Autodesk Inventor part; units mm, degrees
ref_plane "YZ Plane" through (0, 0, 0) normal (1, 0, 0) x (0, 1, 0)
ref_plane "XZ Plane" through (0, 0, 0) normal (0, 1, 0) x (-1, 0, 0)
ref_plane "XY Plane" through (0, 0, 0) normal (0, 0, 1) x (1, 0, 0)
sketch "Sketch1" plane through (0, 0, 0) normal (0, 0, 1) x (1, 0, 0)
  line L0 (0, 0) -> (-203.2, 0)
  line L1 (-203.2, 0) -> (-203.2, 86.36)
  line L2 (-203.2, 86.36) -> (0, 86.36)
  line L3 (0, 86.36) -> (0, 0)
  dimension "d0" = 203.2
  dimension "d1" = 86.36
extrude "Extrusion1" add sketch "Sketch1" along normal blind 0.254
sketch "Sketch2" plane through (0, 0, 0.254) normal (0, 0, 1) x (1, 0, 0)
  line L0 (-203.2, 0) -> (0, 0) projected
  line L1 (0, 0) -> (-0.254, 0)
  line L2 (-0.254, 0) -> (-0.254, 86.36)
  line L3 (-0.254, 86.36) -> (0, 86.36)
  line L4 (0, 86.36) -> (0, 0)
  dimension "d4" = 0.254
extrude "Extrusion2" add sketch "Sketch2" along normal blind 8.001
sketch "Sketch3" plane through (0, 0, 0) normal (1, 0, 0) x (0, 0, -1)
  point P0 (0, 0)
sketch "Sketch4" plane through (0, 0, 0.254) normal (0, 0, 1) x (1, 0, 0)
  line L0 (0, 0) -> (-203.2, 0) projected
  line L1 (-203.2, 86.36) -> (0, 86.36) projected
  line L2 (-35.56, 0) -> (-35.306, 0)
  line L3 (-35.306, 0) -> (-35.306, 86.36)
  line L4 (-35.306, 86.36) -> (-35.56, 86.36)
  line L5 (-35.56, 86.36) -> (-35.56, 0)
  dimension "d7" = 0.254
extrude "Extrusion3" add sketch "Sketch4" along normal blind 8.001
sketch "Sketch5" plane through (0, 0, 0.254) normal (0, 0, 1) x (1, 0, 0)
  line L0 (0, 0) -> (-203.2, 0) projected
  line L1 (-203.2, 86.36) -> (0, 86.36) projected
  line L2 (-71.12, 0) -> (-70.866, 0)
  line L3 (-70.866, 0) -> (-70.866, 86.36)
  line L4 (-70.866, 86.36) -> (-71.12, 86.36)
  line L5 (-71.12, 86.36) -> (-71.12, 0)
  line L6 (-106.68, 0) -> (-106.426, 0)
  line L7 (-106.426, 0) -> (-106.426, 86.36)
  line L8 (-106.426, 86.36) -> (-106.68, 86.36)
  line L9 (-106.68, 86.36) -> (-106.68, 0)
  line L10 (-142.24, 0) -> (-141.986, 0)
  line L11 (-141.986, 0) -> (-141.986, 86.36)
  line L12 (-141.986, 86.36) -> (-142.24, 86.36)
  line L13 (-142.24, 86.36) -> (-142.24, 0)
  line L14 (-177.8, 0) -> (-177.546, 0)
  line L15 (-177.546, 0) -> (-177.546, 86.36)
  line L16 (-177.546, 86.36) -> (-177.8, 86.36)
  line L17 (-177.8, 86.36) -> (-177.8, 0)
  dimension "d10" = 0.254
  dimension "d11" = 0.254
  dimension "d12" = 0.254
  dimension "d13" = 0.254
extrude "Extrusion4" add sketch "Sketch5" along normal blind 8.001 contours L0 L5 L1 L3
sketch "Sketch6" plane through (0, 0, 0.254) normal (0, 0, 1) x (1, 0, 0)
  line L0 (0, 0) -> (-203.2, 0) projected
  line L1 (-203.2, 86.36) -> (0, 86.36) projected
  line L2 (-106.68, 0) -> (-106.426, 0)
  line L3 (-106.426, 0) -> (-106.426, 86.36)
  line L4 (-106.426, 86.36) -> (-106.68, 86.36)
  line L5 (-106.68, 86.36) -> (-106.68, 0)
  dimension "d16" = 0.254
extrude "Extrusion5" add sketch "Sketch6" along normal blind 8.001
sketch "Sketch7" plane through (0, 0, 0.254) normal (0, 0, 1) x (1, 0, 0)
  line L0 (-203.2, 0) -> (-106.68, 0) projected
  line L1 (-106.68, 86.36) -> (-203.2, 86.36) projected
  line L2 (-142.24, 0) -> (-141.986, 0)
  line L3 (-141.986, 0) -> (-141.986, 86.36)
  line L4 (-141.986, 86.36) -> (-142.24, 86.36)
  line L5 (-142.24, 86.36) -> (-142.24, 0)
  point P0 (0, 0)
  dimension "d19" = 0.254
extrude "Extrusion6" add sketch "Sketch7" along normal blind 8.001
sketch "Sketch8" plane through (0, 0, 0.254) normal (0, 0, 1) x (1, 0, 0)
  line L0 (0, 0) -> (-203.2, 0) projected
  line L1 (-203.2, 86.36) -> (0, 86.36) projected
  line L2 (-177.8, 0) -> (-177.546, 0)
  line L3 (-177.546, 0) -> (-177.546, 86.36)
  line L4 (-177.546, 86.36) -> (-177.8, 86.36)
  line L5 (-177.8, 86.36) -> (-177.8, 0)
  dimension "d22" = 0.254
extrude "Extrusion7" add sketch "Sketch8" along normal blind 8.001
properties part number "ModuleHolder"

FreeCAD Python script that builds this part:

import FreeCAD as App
import Part
import Sketcher
from FreeCAD import Vector
Q = App.Units.Quantity

doc = App.newDocument("Part")
params = doc.addObject("Spreadsheet::Sheet", "Params")
for row, (alias, value) in enumerate([
    ("sketch1_width", "8 in"),
    ("sketch1_height", "3.4 in"),
    ("pad1_length", "0.01 in"),
    ("sketch2_width", "0.01 in"),
    ("sketch2_height", "3.4 in"),
    ("pad2_length", "0.315 in"),
    ("sketch3_width", "0.01 in"),
    ("sketch3_height", "3.4 in"),
    ("pad3_length", "0.315 in"),
    ("sketch4_width", "0.01 in"),
    ("sketch4_height", "3.4 in"),
    ("pad4_length", "0.315 in"),
    ("sketch5_width", "0.01 in"),
    ("sketch5_height", "3.4 in"),
    ("pad5_length", "0.315 in"),
    ("sketch6_width", "0.01 in"),
    ("sketch6_height", "3.4 in"),
    ("pad6_length", "0.315 in"),
    ("sketch7_width", "0.01 in"),
    ("sketch7_height", "3.4 in"),
    ("pad7_length", "0.315 in"),
], start=1):
    params.set(f"A{row}", alias)
    params.set(f"B{row}", "=" + value)
    params.setAlias(f"B{row}", alias)

body = doc.addObject("PartDesign::Body", "Body")

# Sketch on XY plane
sketch1 = body.newObject("Sketcher::SketchObject", "Sketch")
sketch1.AttachmentSupport = (doc.getObject("XY_Plane"), [""])
sketch1.MapMode = "FlatFace"
sketch1.addGeometry([
    Part.LineSegment(Vector(-203, 0, 0), Vector(0, 0, 0)),
    Part.LineSegment(Vector(0, 0, 0), Vector(0, 86, 0)),
    Part.LineSegment(Vector(0, 86, 0), Vector(-203, 86, 0)),
    Part.LineSegment(Vector(-203, 86, 0), Vector(-203, 0, 0)),
], False)
sketch1.addConstraint([
    Sketcher.Constraint("Coincident", 0, 2, 1, 1),
    Sketcher.Constraint("Coincident", 1, 2, 2, 1),
    Sketcher.Constraint("Coincident", 2, 2, 3, 1),
    Sketcher.Constraint("Coincident", 3, 2, 0, 1),
    Sketcher.Constraint("Horizontal", 0),
    Sketcher.Constraint("Vertical", 1),
    Sketcher.Constraint("Horizontal", 2),
    Sketcher.Constraint("Vertical", 3),
    Sketcher.Constraint("Coincident", 0, 2, -1, 1),
    Sketcher.Constraint("DistanceX", 0, 1, 0, 2, Q("8 in")),
    Sketcher.Constraint("DistanceY", 1, 1, 1, 2, Q("3.4 in")),
])
sketch1.setExpression("Constraints[9]", "Params.sketch1_width")
sketch1.setExpression("Constraints[10]", "Params.sketch1_height")
pad1 = body.newObject("PartDesign::Pad", "Pad")
pad1.Profile = sketch1
pad1.setExpression("Length", "Params.pad1_length")

# Sketch on XY plane
sketch2 = body.newObject("Sketcher::SketchObject", "Sketch001")
sketch2.AttachmentSupport = (doc.getObject("XY_Plane"), [""])
sketch2.MapMode = "FlatFace"
sketch2.AttachmentOffset = App.Placement(Vector(0, 0, 0.01 * 25.4), App.Rotation())
sketch2.addGeometry([
    Part.LineSegment(Vector(-0.25, 86.36, 0), Vector(-0.25, 0, 0)),
    Part.LineSegment(Vector(-0.25, 0, 0), Vector(0, 0, 0)),
    Part.LineSegment(Vector(0, 0, 0), Vector(0, 86.36, 0)),
    Part.LineSegment(Vector(0, 86.36, 0), Vector(-0.25, 86.36, 0)),
], False)
sketch2.addConstraint([
    Sketcher.Constraint("Coincident", 0, 2, 1, 1),
    Sketcher.Constraint("Coincident", 1, 2, 2, 1),
    Sketcher.Constraint("Coincident", 2, 2, 3, 1),
    Sketcher.Constraint("Coincident", 3, 2, 0, 1),
    Sketcher.Constraint("Vertical", 0),
    Sketcher.Constraint("Horizontal", 1),
    Sketcher.Constraint("Vertical", 2),
    Sketcher.Constraint("Horizontal", 3),
    Sketcher.Constraint("Coincident", 1, 2, -1, 1),
    Sketcher.Constraint("DistanceX", 1, 1, 1, 2, Q("0.01 in")),
    Sketcher.Constraint("DistanceY", 0, 2, 0, 1, Q("3.4 in")),
])
sketch2.setExpression("Constraints[9]", "Params.sketch2_width")
sketch2.setExpression("Constraints[10]", "Params.sketch2_height")
pad2 = body.newObject("PartDesign::Pad", "Pad001")
pad2.Profile = sketch2
pad2.setExpression("Length", "Params.pad2_length")

# Sketch on XY plane
sketch3 = body.newObject("Sketcher::SketchObject", "Sketch002")
sketch3.AttachmentSupport = (doc.getObject("XY_Plane"), [""])
sketch3.MapMode = "FlatFace"
sketch3.AttachmentOffset = App.Placement(Vector(0, 0, 0.01 * 25.4), App.Rotation())
sketch3.addGeometry([
    Part.LineSegment(Vector(-35.56, 0, 0), Vector(-35.31, 0, 0)),
    Part.LineSegment(Vector(-35.31, 0, 0), Vector(-35.31, 86.36, 0)),
    Part.LineSegment(Vector(-35.31, 86.36, 0), Vector(-35.56, 86.36, 0)),
    Part.LineSegment(Vector(-35.56, 86.36, 0), Vector(-35.56, 0, 0)),
], False)
sketch3.addConstraint([
    Sketcher.Constraint("Coincident", 0, 2, 1, 1),
    Sketcher.Constraint("Coincident", 1, 2, 2, 1),
    Sketcher.Constraint("Coincident", 2, 2, 3, 1),
    Sketcher.Constraint("Coincident", 3, 2, 0, 1),
    Sketcher.Constraint("Horizontal", 0),
    Sketcher.Constraint("Vertical", 1),
    Sketcher.Constraint("Horizontal", 2),
    Sketcher.Constraint("Vertical", 3),
    Sketcher.Constraint("PointOnObject", 0, 2, -1),
    Sketcher.Constraint("DistanceX", 0, 1, 0, 2, Q("0.01 in")),
    Sketcher.Constraint("DistanceY", 1, 1, 1, 2, Q("3.4 in")),
    Sketcher.Constraint("DistanceX", 2, 2, -1, 1, Q("1.4 in")),
])
sketch3.setExpression("Constraints[9]", "Params.sketch3_width")
sketch3.setExpression("Constraints[10]", "Params.sketch3_height")
pad3 = body.newObject("PartDesign::Pad", "Pad002")
pad3.Profile = sketch3
pad3.setExpression("Length", "Params.pad3_length")

# Sketch on XY plane
sketch4 = body.newObject("Sketcher::SketchObject", "Sketch003")
sketch4.AttachmentSupport = (doc.getObject("XY_Plane"), [""])
sketch4.MapMode = "FlatFace"
sketch4.AttachmentOffset = App.Placement(Vector(0, 0, 0.01 * 25.4), App.Rotation())
sketch4.addGeometry([
    Part.LineSegment(Vector(-71.12, 0, 0), Vector(-70.87, 0, 0)),
    Part.LineSegment(Vector(-70.87, 0, 0), Vector(-70.87, 86.36, 0)),
    Part.LineSegment(Vector(-70.87, 86.36, 0), Vector(-71.12, 86.36, 0)),
    Part.LineSegment(Vector(-71.12, 86.36, 0), Vector(-71.12, 0, 0)),
], False)
sketch4.addConstraint([
    Sketcher.Constraint("Coincident", 0, 2, 1, 1),
    Sketcher.Constraint("Coincident", 1, 2, 2, 1),
    Sketcher.Constraint("Coincident", 2, 2, 3, 1),
    Sketcher.Constraint("Coincident", 3, 2, 0, 1),
    Sketcher.Constraint("Horizontal", 0),
    Sketcher.Constraint("Vertical", 1),
    Sketcher.Constraint("Horizontal", 2),
    Sketcher.Constraint("Vertical", 3),
    Sketcher.Constraint("PointOnObject", 0, 2, -1),
    Sketcher.Constraint("DistanceX", 0, 1, 0, 2, Q("0.01 in")),
    Sketcher.Constraint("DistanceY", 1, 1, 1, 2, Q("3.4 in")),
    Sketcher.Constraint("DistanceX", 2, 2, -1, 1, Q("2.8 in")),
])
sketch4.setExpression("Constraints[9]", "Params.sketch4_width")
sketch4.setExpression("Constraints[10]", "Params.sketch4_height")
pad4 = body.newObject("PartDesign::Pad", "Pad003")
pad4.Profile = sketch4
pad4.setExpression("Length", "Params.pad4_length")

# Sketch on XY plane
sketch5 = body.newObject("Sketcher::SketchObject", "Sketch004")
sketch5.AttachmentSupport = (doc.getObject("XY_Plane"), [""])
sketch5.MapMode = "FlatFace"
sketch5.AttachmentOffset = App.Placement(Vector(0, 0, 0.01 * 25.4), App.Rotation())
sketch5.addGeometry([
    Part.LineSegment(Vector(-106.68, 0, 0), Vector(-106.43, 0, 0)),
    Part.LineSegment(Vector(-106.43, 0, 0), Vector(-106.43, 86.36, 0)),
    Part.LineSegment(Vector(-106.43, 86.36, 0), Vector(-106.68, 86.36, 0)),
    Part.LineSegment(Vector(-106.68, 86.36, 0), Vector(-106.68, 0, 0)),
], False)
sketch5.addConstraint([
    Sketcher.Constraint("Coincident", 0, 2, 1, 1),
    Sketcher.Constraint("Coincident", 1, 2, 2, 1),
    Sketcher.Constraint("Coincident", 2, 2, 3, 1),
    Sketcher.Constraint("Coincident", 3, 2, 0, 1),
    Sketcher.Constraint("Horizontal", 0),
    Sketcher.Constraint("Vertical", 1),
    Sketcher.Constraint("Horizontal", 2),
    Sketcher.Constraint("Vertical", 3),
    Sketcher.Constraint("PointOnObject", 0, 2, -1),
    Sketcher.Constraint("DistanceX", 0, 1, 0, 2, Q("0.01 in")),
    Sketcher.Constraint("DistanceY", 1, 1, 1, 2, Q("3.4 in")),
    Sketcher.Constraint("DistanceX", 2, 2, -1, 1, Q("4.2 in")),
])
sketch5.setExpression("Constraints[9]", "Params.sketch5_width")
sketch5.setExpression("Constraints[10]", "Params.sketch5_height")
pad5 = body.newObject("PartDesign::Pad", "Pad004")
pad5.Profile = sketch5
pad5.setExpression("Length", "Params.pad5_length")

# Sketch on XY plane
sketch6 = body.newObject("Sketcher::SketchObject", "Sketch005")
sketch6.AttachmentSupport = (doc.getObject("XY_Plane"), [""])
sketch6.MapMode = "FlatFace"
sketch6.AttachmentOffset = App.Placement(Vector(0, 0, 0.01 * 25.4), App.Rotation())
sketch6.addGeometry([
    Part.LineSegment(Vector(-142.24, 86.36, 0), Vector(-142.24, 0, 0)),
    Part.LineSegment(Vector(-142.24, 0, 0), Vector(-141.99, 0, 0)),
    Part.LineSegment(Vector(-141.99, 0, 0), Vector(-141.99, 86.36, 0)),
    Part.LineSegment(Vector(-141.99, 86.36, 0), Vector(-142.24, 86.36, 0)),
], False)
sketch6.addConstraint([
    Sketcher.Constraint("Coincident", 0, 2, 1, 1),
    Sketcher.Constraint("Coincident", 1, 2, 2, 1),
    Sketcher.Constraint("Coincident", 2, 2, 3, 1),
    Sketcher.Constraint("Coincident", 3, 2, 0, 1),
    Sketcher.Constraint("Vertical", 0),
    Sketcher.Constraint("Horizontal", 1),
    Sketcher.Constraint("Vertical", 2),
    Sketcher.Constraint("Horizontal", 3),
    Sketcher.Constraint("PointOnObject", 0, 2, -1),
    Sketcher.Constraint("DistanceX", 1, 1, 1, 2, Q("0.01 in")),
    Sketcher.Constraint("DistanceY", 0, 2, 0, 1, Q("3.4 in")),
    Sketcher.Constraint("DistanceX", 0, 2, -1, 1, Q("5.6 in")),
])
sketch6.setExpression("Constraints[9]", "Params.sketch6_width")
sketch6.setExpression("Constraints[10]", "Params.sketch6_height")
pad6 = body.newObject("PartDesign::Pad", "Pad005")
pad6.Profile = sketch6
pad6.setExpression("Length", "Params.pad6_length")

# Sketch on XY plane
sketch7 = body.newObject("Sketcher::SketchObject", "Sketch006")
sketch7.AttachmentSupport = (doc.getObject("XY_Plane"), [""])
sketch7.MapMode = "FlatFace"
sketch7.AttachmentOffset = App.Placement(Vector(0, 0, 0.01 * 25.4), App.Rotation())
sketch7.addGeometry([
    Part.LineSegment(Vector(-177.8, 0, 0), Vector(-177.55, 0, 0)),
    Part.LineSegment(Vector(-177.55, 0, 0), Vector(-177.55, 86.36, 0)),
    Part.LineSegment(Vector(-177.55, 86.36, 0), Vector(-177.8, 86.36, 0)),
    Part.LineSegment(Vector(-177.8, 86.36, 0), Vector(-177.8, 0, 0)),
], False)
sketch7.addConstraint([
    Sketcher.Constraint("Coincident", 0, 2, 1, 1),
    Sketcher.Constraint("Coincident", 1, 2, 2, 1),
    Sketcher.Constraint("Coincident", 2, 2, 3, 1),
    Sketcher.Constraint("Coincident", 3, 2, 0, 1),
    Sketcher.Constraint("Horizontal", 0),
    Sketcher.Constraint("Vertical", 1),
    Sketcher.Constraint("Horizontal", 2),
    Sketcher.Constraint("Vertical", 3),
    Sketcher.Constraint("PointOnObject", 0, 2, -1),
    Sketcher.Constraint("DistanceX", 0, 1, 0, 2, Q("0.01 in")),
    Sketcher.Constraint("DistanceY", 1, 1, 1, 2, Q("3.4 in")),
    Sketcher.Constraint("DistanceX", 2, 2, -1, 1, Q("7 in")),
])
sketch7.setExpression("Constraints[9]", "Params.sketch7_width")
sketch7.setExpression("Constraints[10]", "Params.sketch7_height")
pad7 = body.newObject("PartDesign::Pad", "Pad006")
pad7.Profile = sketch7
pad7.setExpression("Length", "Params.pad7_length")

doc.recompute()
